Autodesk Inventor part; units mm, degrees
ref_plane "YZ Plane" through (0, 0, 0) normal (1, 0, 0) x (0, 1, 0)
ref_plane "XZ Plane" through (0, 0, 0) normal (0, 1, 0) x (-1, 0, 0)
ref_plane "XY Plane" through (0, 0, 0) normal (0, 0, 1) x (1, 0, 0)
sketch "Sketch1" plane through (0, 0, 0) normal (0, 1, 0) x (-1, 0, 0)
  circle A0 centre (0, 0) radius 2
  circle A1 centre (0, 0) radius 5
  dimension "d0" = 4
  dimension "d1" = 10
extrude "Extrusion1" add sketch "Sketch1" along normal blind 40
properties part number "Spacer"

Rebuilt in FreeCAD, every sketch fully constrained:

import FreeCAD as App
import Part
import Sketcher
from FreeCAD import Vector
Q = App.Units.Quantity

doc = App.newDocument("Part")
params = doc.addObject("Spreadsheet::Sheet", "Params")
for row, (alias, value) in enumerate([
    ("sketch1_diameter", "10 mm"),
    ("sketch1_diameter2", "4 mm"),
    ("pad1_length", "40 mm"),
], start=1):
    params.set(f"A{row}", alias)
    params.set(f"B{row}", "=" + value)
    params.setAlias(f"B{row}", alias)

body = doc.addObject("PartDesign::Body", "Body")

sketch1 = doc.addObject("Sketcher::SketchObject", "Sketch")
body.addObject(sketch1)
sketch1.AttachmentSupport = (doc.XZ_Plane, [""])
sketch1.MapMode = "FlatFace"
sketch1.addGeometry([
    Part.Circle(Vector(0, 0, 0), Vector(0, 0, 1), 5),
    Part.Circle(Vector(0, 0, 0), Vector(0, 0, 1), 2),
], False)
sketch1.addConstraint([
    Sketcher.Constraint("Coincident", 0, 3, -1, 1),
    Sketcher.Constraint("Coincident", 1, 3, -1, 1),
    Sketcher.Constraint("Diameter", 0, Q("10 mm")),
    Sketcher.Constraint("Diameter", 1, Q("4 mm")),
])
sketch1.setExpression("Constraints[2]", "Params.sketch1_diameter")
sketch1.setExpression("Constraints[3]", "Params.sketch1_diameter2")
pad1 = doc.addObject("PartDesign::Pad", "Pad")
body.addObject(pad1)
pad1.Profile = sketch1
pad1.setExpression("Length", "Params.pad1_length")
pad1.Reversed = True

doc.recompute()
